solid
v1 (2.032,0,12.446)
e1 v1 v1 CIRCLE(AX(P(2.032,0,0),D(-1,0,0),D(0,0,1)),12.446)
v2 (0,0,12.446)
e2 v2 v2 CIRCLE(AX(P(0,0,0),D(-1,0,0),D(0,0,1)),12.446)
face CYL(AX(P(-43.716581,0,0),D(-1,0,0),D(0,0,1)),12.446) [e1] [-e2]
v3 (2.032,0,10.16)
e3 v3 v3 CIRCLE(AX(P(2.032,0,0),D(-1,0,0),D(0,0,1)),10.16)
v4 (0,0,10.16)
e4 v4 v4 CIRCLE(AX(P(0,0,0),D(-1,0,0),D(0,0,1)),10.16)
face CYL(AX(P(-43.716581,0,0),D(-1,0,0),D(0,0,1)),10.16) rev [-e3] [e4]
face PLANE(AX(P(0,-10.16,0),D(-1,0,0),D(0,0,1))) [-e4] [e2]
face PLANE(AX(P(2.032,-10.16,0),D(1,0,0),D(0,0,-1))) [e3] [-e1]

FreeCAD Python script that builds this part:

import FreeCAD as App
import Part
import Sketcher
from FreeCAD import Vector
Q = App.Units.Quantity


def add_polygon(sketch, points):
    """Adds a closed chain of lines whose ends are joined by coincident constraints."""
    first, n = sketch.GeometryCount, len(points)
    for a, b in zip(points, points[1:] + points[:1]):
        sketch.addGeometry(Part.LineSegment(App.Vector(*a, 0), App.Vector(*b, 0)), False)
    for i in range(n):
        sketch.addConstraint(Sketcher.Constraint("Coincident", first + i, 2, first + (i + 1) % n, 1))

doc = App.newDocument("Part")
body = doc.addObject("PartDesign::Body", "Body")

# Sketch on XY plane
sketch1 = body.newObject("Sketcher::SketchObject", "Sketch")
sketch1.AttachmentSupport = (doc.getObject("XY_Plane"), [""])
sketch1.MapMode = "FlatFace"
add_polygon(sketch1, [(0, -10.2), (0, -12.4), (2, -12.4), (2, -10.2)])  # lines 0-3
sketch1.addConstraint([
    Sketcher.Constraint("Vertical", 0),
    Sketcher.Constraint("Horizontal", 1),
    Sketcher.Constraint("Vertical", 2),
    Sketcher.Constraint("Horizontal", 3),
    Sketcher.Constraint("PointOnObject", 0, 2, -2),
    Sketcher.Constraint("DistanceX", 1, 1, 1, 2, Q("0.08 in")),
    Sketcher.Constraint("DistanceY", 0, 2, 0, 1, Q("0.09 in")),
    Sketcher.Constraint("DistanceY", 2, 2, -1, 1, Q("0.4 in")),
])
revolution = body.newObject("PartDesign::Revolution", "Revolution")
revolution.Profile = sketch1
revolution.ReferenceAxis = (sketch1, ["H_Axis"])
revolution.Angle = 360

doc.recompute()
